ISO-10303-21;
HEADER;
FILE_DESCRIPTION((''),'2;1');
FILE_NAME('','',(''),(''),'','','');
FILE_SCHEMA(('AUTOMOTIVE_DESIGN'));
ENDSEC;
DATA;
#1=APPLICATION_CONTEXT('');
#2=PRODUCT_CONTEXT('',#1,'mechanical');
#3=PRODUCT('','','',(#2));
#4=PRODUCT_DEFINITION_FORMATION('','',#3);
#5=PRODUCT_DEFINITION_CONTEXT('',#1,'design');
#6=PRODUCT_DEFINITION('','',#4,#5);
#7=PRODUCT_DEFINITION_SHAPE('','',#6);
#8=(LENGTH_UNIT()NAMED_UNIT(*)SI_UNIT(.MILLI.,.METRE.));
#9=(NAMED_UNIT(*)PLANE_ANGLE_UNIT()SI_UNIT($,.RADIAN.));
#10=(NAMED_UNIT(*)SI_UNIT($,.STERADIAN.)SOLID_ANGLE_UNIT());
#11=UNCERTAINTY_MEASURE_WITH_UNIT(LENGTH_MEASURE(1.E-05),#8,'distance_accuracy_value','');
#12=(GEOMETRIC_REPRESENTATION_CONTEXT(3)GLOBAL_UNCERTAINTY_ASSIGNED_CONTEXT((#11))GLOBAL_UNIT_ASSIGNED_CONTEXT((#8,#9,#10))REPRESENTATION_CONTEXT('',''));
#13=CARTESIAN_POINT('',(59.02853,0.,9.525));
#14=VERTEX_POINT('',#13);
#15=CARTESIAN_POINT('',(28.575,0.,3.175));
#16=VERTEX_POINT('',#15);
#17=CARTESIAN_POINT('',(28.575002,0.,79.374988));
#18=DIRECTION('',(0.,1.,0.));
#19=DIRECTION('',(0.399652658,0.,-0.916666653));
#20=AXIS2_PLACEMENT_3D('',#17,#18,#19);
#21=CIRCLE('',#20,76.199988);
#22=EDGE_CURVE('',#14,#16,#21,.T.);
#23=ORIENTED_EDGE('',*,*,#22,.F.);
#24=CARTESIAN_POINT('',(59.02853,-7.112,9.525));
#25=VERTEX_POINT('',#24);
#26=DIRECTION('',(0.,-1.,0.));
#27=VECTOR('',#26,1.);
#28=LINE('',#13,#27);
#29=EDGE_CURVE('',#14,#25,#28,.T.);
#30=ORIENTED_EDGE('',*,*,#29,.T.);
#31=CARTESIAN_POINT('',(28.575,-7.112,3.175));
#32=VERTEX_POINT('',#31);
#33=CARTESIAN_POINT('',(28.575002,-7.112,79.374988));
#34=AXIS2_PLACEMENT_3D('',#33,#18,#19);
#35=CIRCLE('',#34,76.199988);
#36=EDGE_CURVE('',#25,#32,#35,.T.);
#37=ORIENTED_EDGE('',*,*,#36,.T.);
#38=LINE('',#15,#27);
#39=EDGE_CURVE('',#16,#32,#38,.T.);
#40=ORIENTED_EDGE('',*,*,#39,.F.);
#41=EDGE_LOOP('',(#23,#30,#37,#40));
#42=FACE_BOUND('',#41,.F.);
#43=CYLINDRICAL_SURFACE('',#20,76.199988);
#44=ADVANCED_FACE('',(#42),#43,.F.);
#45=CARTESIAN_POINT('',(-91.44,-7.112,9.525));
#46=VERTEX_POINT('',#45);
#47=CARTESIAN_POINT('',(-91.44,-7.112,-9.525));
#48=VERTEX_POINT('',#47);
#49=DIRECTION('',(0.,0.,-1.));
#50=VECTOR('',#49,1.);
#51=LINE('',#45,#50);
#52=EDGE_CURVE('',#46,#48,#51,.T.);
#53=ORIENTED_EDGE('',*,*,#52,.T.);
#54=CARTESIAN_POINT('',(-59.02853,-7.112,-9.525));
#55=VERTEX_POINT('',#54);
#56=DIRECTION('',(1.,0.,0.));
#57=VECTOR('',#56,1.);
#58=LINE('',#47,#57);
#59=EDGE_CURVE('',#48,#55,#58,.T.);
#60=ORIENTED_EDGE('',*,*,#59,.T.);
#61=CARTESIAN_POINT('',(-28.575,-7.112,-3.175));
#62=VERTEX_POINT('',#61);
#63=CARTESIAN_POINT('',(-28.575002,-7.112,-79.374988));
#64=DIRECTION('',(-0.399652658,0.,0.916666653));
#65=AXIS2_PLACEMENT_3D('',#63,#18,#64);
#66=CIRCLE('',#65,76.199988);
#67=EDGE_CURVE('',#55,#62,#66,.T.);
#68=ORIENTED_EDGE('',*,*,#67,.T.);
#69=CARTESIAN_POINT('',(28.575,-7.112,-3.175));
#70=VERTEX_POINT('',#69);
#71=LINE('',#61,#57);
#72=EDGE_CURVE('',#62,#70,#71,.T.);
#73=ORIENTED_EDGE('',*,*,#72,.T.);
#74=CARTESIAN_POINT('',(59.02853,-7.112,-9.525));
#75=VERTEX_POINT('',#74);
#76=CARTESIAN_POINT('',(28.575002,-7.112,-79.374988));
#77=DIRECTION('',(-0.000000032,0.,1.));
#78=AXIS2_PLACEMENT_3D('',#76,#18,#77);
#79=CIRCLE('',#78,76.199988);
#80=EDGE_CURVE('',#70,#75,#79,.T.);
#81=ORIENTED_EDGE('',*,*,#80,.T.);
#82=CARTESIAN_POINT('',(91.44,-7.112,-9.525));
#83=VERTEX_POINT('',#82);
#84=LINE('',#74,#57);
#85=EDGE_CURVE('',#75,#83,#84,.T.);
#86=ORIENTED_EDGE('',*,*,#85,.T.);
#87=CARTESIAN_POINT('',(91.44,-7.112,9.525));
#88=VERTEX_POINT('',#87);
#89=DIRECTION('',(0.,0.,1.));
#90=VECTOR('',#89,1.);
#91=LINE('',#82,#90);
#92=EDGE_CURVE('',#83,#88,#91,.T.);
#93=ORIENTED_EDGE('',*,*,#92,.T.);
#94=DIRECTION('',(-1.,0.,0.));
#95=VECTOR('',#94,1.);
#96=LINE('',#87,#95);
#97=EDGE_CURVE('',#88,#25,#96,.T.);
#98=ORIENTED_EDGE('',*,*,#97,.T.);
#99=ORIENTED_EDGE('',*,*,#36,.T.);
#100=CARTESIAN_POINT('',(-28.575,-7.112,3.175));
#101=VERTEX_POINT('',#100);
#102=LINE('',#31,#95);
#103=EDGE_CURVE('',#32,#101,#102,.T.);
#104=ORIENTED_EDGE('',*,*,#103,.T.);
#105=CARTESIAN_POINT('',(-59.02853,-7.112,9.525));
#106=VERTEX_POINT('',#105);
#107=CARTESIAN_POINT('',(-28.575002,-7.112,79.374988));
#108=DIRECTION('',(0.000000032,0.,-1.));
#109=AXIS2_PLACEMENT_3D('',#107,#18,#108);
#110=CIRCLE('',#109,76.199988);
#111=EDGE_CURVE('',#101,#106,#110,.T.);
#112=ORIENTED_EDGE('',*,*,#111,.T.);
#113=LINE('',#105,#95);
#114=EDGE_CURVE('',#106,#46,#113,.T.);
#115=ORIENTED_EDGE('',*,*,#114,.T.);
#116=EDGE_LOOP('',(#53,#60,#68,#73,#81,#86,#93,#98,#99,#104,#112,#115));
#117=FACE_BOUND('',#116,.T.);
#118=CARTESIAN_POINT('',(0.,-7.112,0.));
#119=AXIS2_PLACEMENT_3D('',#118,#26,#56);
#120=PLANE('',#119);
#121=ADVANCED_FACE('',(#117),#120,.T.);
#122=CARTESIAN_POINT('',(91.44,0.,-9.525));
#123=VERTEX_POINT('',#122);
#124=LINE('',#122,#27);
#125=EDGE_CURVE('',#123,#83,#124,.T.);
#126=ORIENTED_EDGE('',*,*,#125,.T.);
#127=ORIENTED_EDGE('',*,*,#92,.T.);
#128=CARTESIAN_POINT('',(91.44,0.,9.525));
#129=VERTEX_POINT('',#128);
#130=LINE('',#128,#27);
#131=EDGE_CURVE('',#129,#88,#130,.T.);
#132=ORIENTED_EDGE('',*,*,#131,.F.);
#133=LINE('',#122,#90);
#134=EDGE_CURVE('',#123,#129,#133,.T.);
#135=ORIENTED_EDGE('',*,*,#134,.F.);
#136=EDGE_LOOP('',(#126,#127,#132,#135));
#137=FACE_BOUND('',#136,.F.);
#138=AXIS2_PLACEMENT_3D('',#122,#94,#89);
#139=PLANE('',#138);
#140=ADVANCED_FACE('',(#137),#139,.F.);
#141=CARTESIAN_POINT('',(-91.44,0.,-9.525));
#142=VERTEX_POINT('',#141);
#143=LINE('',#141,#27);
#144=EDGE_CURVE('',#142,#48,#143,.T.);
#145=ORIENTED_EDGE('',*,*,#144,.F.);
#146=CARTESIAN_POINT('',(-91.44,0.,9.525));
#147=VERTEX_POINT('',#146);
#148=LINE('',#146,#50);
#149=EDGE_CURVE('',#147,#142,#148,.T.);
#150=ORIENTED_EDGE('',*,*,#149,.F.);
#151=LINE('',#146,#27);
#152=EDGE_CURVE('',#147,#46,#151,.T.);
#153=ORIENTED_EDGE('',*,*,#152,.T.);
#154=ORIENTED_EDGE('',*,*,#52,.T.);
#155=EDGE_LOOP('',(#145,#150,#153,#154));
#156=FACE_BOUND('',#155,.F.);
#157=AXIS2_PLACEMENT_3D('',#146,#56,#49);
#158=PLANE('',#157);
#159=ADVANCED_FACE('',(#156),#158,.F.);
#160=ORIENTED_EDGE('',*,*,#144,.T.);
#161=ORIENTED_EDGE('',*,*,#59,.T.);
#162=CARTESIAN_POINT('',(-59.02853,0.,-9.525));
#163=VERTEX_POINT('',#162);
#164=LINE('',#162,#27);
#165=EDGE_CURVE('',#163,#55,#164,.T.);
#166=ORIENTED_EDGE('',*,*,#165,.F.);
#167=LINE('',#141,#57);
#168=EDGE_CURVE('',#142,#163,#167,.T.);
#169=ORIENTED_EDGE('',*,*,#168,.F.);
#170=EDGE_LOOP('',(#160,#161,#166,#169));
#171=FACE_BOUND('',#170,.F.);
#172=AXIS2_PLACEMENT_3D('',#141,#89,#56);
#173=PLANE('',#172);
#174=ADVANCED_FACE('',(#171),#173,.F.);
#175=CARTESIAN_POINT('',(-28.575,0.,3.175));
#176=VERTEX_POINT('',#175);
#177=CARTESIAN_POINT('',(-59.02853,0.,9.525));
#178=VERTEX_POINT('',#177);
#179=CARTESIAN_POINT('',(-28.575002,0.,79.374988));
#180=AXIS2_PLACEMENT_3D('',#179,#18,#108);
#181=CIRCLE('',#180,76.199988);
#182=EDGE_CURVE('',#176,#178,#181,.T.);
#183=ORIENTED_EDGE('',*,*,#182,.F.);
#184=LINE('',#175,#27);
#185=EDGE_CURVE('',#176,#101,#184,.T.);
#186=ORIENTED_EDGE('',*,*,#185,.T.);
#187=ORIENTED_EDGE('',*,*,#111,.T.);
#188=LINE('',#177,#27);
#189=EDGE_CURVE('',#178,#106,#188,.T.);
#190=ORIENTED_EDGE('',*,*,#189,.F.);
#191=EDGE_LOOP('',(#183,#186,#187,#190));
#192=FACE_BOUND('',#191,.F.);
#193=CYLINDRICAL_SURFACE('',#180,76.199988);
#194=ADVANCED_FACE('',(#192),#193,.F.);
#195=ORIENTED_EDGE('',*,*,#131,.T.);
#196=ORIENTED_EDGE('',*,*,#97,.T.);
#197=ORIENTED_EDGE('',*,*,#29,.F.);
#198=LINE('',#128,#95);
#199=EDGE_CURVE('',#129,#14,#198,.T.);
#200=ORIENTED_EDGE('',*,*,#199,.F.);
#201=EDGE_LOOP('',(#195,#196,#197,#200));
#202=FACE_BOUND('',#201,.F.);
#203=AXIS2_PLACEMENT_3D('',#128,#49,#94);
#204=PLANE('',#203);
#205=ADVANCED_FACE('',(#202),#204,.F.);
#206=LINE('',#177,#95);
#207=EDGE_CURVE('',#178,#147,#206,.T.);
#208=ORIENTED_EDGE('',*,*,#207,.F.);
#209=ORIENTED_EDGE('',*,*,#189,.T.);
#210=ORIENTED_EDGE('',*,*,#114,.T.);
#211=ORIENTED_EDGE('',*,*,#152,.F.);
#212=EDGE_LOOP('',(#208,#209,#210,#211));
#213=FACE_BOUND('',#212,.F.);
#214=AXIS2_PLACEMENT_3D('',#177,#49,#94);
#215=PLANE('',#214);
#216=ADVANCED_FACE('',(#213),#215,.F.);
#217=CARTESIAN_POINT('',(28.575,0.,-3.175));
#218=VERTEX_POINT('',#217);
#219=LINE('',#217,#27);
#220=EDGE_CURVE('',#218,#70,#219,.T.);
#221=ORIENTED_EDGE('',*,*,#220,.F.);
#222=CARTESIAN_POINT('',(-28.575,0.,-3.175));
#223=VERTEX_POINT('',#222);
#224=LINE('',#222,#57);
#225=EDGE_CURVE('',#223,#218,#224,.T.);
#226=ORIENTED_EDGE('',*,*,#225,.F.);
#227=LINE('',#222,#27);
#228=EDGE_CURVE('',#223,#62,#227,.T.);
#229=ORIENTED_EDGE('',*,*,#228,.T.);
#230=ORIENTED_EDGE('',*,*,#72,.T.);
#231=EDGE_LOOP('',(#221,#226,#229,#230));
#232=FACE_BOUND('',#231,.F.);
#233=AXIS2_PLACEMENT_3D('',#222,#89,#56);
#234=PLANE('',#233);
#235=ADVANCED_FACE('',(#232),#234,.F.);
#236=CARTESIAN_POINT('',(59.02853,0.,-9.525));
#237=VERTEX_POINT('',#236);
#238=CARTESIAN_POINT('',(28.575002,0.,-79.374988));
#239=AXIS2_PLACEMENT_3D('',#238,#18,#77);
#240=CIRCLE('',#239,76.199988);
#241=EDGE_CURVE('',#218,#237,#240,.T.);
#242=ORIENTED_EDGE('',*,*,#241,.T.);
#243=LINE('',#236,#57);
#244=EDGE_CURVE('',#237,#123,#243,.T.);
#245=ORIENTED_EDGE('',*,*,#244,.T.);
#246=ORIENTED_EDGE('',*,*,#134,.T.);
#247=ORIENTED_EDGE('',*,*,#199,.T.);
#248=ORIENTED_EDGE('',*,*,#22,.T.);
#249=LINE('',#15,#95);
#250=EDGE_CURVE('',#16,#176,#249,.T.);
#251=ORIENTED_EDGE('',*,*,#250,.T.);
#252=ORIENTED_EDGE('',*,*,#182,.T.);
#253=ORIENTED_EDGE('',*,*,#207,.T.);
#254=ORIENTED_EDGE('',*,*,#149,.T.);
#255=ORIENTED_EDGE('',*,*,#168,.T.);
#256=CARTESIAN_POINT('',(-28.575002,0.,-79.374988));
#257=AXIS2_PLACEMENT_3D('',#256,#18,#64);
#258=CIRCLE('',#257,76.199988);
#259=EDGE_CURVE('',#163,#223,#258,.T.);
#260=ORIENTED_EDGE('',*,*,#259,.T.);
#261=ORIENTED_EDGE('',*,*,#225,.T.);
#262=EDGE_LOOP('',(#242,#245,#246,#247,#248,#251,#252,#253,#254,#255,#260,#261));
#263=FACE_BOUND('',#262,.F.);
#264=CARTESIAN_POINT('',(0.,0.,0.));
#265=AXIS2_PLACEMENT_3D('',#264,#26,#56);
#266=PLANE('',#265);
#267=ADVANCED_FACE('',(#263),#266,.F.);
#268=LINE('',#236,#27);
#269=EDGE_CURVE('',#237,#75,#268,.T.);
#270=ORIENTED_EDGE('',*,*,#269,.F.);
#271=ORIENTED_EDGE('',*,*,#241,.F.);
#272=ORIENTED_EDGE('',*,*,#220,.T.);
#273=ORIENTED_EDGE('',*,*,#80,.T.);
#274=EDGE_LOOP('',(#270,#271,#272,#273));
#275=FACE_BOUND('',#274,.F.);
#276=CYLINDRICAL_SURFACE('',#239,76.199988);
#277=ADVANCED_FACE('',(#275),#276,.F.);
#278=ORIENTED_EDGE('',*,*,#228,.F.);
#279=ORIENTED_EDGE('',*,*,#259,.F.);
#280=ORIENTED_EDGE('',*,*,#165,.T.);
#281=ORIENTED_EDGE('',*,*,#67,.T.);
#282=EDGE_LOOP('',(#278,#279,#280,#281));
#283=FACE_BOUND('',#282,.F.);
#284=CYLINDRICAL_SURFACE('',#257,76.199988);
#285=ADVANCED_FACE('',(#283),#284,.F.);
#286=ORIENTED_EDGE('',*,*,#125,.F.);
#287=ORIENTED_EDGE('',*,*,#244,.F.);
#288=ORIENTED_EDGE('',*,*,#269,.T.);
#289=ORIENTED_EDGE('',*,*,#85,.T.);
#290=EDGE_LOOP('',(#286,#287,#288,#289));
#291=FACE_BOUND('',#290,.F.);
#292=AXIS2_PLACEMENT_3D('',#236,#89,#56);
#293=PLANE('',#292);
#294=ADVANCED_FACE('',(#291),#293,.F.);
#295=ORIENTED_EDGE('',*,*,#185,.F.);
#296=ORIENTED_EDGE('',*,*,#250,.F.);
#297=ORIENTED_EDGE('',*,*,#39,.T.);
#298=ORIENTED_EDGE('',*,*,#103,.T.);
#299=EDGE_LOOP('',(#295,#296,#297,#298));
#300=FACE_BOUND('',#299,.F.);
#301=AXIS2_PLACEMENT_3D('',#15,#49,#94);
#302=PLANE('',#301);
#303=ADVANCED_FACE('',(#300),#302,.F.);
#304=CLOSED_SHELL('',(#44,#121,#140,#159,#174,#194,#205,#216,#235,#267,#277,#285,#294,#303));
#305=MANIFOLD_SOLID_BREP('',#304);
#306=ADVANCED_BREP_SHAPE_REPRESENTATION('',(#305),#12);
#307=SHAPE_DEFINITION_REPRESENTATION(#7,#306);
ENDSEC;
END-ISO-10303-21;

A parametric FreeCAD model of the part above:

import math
import FreeCAD as App
import Part
import Sketcher
from FreeCAD import Vector
Q = App.Units.Quantity

doc = App.newDocument("Part")
params = doc.addObject("Spreadsheet::Sheet", "Params")
for row, (alias, value) in enumerate([
    ("sketch1_width", "2.25 in"),
    ("sketch1_height", "0.75 in"),
    ("pad1_length", "0.28 in"),
], start=1):
    params.set(f"A{row}", alias)
    params.set(f"B{row}", "=" + value)
    params.setAlias(f"B{row}", alias)

body = doc.addObject("PartDesign::Body", "Body")

# Sketch on XZ plane
sketch1 = body.newObject("Sketcher::SketchObject", "Sketch")
sketch1.AttachmentSupport = (doc.getObject("XZ_Plane"), [""])
sketch1.MapMode = "FlatFace"
sketch1.addGeometry([
    Part.LineSegment(Vector(28.575, 3.175, 0), Vector(-28.575, 3.175, 0)),  # 0
    Part.ArcOfCircle(Part.Circle(Vector(-28.575002, 79.374988, 0), Vector(0, 0, 1), 76.199988), math.radians(-113.556466), math.radians(-89.999998)),  # 1
    Part.LineSegment(Vector(-59.02853, 9.525, 0), Vector(-91.44, 9.525, 0)),  # 2
    Part.LineSegment(Vector(-91.44, 9.525, 0), Vector(-91.44, -9.525, 0)),  # 3
    Part.LineSegment(Vector(-91.44, -9.525, 0), Vector(-59.02853, -9.525, 0)),  # 4
    Part.ArcOfCircle(Part.Circle(Vector(-28.575002, -79.374988, 0), Vector(0, 0, 1), 76.199988), math.radians(89.999998), math.radians(113.556466)),  # 5
    Part.LineSegment(Vector(-28.575, -3.175, 0), Vector(28.575, -3.175, 0)),  # 6
    Part.ArcOfCircle(Part.Circle(Vector(28.575002, -79.374988, 0), Vector(0, 0, 1), 76.199988), math.radians(66.443534), math.radians(90.000002)),  # 7
    Part.LineSegment(Vector(59.02853, -9.525, 0), Vector(91.44, -9.525, 0)),  # 8
    Part.LineSegment(Vector(91.44, -9.525, 0), Vector(91.44, 9.525, 0)),  # 9
    Part.LineSegment(Vector(91.44, 9.525, 0), Vector(59.02853, 9.525, 0)),  # 10
    Part.ArcOfCircle(Part.Circle(Vector(28.575002, 79.374988, 0), Vector(0, 0, 1), 76.199988), math.radians(-90.000002), math.radians(-66.443534)),  # 11
], False)
sketch1.addConstraint([
    Sketcher.Constraint("Tangent", 0, 2, 1, 2),
    Sketcher.Constraint("Coincident", 1, 1, 2, 1),
    Sketcher.Constraint("Coincident", 2, 2, 3, 1),
    Sketcher.Constraint("Coincident", 3, 2, 4, 1),
    Sketcher.Constraint("Coincident", 4, 2, 5, 2),
    Sketcher.Constraint("Tangent", 5, 1, 6, 1),
    Sketcher.Constraint("Tangent", 6, 2, 7, 2),
    Sketcher.Constraint("Coincident", 7, 1, 8, 1),
    Sketcher.Constraint("Coincident", 8, 2, 9, 1),
    Sketcher.Constraint("Coincident", 9, 2, 10, 1),
    Sketcher.Constraint("Coincident", 10, 2, 11, 2),
    Sketcher.Constraint("Tangent", 11, 1, 0, 1),
    Sketcher.Constraint("Horizontal", 0),
    Sketcher.Constraint("Horizontal", 2),
    Sketcher.Constraint("Vertical", 3),
    Sketcher.Constraint("Horizontal", 4),
    Sketcher.Constraint("Horizontal", 6),
    Sketcher.Constraint("Horizontal", 8),
    Sketcher.Constraint("Vertical", 9),
    Sketcher.Constraint("Horizontal", 10),
    Sketcher.Constraint("Equal", 1, 5),
    Sketcher.Constraint("Equal", 5, 7),
    Sketcher.Constraint("Equal", 7, 11),
    Sketcher.Constraint("Symmetric", 1, 3, 7, 3, -1, 1),
    Sketcher.Constraint("Symmetric", 2, 2, 8, 2, -1, 1),
    Sketcher.Constraint("Symmetric", 4, 2, 10, 2, -1, 1),
    Sketcher.Constraint("Symmetric", 4, 2, 7, 1, -2),
    Sketcher.Constraint("DistanceX", 0, 2, 0, 1, Q("2.25 in")),
    Sketcher.Constraint("DistanceY", 3, 2, 3, 1, Q("0.75 in")),
    Sketcher.Constraint("DistanceX", 2, 2, -1, 1, Q("3.6 in")),
    Sketcher.Constraint("DistanceY", 3, 2, 0, 2, Q("0.5 in")),
    Sketcher.Constraint("Radius", 1, 76.199988),
])
sketch1.setExpression("Constraints[27]", "Params.sketch1_width")
sketch1.setExpression("Constraints[28]", "Params.sketch1_height")
pad1 = body.newObject("PartDesign::Pad", "Pad")
pad1.Profile = sketch1
pad1.setExpression("Length", "Params.pad1_length")

doc.recompute()
